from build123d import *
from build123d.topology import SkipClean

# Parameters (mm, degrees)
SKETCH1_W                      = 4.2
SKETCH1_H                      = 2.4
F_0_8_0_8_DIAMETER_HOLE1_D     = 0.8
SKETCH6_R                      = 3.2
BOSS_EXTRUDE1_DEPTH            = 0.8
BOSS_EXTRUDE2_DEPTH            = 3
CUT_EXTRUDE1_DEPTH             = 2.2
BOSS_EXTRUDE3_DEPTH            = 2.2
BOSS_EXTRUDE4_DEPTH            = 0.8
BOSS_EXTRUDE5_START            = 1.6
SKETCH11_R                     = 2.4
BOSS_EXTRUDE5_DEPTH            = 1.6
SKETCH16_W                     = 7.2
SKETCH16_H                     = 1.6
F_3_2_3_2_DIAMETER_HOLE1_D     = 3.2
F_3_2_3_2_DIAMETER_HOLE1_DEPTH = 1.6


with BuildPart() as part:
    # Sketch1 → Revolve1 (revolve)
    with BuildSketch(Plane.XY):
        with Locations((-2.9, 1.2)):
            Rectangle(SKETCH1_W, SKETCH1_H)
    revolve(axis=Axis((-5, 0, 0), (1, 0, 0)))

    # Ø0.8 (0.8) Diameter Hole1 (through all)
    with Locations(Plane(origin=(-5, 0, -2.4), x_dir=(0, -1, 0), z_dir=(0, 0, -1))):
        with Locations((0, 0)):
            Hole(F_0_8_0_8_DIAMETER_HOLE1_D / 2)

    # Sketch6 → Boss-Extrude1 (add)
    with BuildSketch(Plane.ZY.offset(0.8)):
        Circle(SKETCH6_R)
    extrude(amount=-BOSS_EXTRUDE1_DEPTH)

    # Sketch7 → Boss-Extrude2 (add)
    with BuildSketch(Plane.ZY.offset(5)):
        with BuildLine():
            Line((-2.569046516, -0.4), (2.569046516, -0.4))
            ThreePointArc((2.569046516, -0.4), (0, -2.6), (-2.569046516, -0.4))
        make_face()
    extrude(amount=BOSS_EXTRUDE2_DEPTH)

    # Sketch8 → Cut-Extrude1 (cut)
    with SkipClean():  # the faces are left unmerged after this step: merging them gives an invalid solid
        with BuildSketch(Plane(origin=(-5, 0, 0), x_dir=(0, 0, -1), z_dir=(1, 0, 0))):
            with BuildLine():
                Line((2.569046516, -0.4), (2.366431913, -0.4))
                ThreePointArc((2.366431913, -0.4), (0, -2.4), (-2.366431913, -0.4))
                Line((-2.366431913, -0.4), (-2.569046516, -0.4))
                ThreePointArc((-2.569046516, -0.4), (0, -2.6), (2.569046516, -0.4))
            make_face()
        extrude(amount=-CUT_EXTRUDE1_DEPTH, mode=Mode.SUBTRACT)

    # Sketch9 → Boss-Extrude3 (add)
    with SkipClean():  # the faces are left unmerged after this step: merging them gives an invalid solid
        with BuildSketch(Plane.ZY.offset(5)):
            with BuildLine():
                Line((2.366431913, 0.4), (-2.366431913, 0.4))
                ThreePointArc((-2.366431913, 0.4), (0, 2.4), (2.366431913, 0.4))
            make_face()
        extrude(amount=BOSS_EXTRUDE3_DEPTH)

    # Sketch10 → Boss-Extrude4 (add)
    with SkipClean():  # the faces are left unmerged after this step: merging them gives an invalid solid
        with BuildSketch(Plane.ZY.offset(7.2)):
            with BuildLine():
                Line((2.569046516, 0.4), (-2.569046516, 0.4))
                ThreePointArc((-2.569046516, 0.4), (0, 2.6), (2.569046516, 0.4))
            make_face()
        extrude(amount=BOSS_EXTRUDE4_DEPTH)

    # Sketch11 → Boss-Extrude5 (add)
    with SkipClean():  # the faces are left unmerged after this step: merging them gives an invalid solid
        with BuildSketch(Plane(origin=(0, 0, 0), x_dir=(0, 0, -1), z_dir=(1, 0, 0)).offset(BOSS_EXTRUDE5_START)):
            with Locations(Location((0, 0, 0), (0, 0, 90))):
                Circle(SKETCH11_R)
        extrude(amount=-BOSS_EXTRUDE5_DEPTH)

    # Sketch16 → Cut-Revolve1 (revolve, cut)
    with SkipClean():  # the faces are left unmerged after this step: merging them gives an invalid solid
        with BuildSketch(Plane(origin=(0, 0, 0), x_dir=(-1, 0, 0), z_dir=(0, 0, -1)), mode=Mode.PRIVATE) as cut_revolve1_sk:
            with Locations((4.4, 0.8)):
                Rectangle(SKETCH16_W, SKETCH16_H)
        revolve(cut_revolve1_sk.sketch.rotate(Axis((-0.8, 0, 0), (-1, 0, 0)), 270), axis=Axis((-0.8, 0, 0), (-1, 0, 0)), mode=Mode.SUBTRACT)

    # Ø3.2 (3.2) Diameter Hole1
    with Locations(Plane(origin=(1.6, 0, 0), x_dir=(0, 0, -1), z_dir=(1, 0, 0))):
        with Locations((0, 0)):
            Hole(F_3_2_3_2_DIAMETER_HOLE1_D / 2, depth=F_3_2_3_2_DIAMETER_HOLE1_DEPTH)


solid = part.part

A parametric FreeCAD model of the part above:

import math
import FreeCAD as App
import Part
import Sketcher
Q = App.Units.Quantity

doc = App.newDocument("Part")
params = doc.addObject("Spreadsheet::Sheet", "Params")
for row, (alias, value) in enumerate([
    ("sketch1_width", "4.2 mm"),
    ("sketch1_height", "2.4 mm"),
    ("revolution_angle", "360 deg"),
    ("sketch2_diameter", "0.8 mm"),
    ("hole_diameter", "0.8 mm"),
    ("sketch3_diameter", "6.4 mm"),
    ("pad1_length", "0.8 mm"),
    ("sketch4_radius", "2.6 mm"),
    ("pad2_length", "3 mm"),
    ("sketch5_radius", "2.4 mm"),
    ("sketch5_radius2", "2.6 mm"),
    ("pocket1_length", "2.2 mm"),
    ("sketch6_radius", "2.4 mm"),
    ("pad3_length", "2.2 mm"),
    ("sketch7_radius", "2.6 mm"),
    ("pad4_length", "0.8 mm"),
    ("sketch8_diameter", "4.8 mm"),
    ("pad5_length", "1.6 mm"),
    ("sketch9_width", "7.2 mm"),
    ("sketch9_height", "1.6 mm"),
    ("groove_angle", "360 deg"),
    ("sketch10_diameter", "3.2 mm"),
    ("hole2_diameter", "3.2 mm"),
    ("hole2_depth", "1.6 mm"),
], start=1):
    params.set(f"A{row}", alias)
    params.set(f"B{row}", "=" + value)
    params.setAlias(f"B{row}", alias)

body = doc.addObject("PartDesign::Body", "Body")

# Sketch on XY plane
sketch1 = doc.addObject("Sketcher::SketchObject", "Sketch")
body.addObject(sketch1)
sketch1.AttachmentSupport = (doc.XY_Plane, [""])
sketch1.MapMode = "FlatFace"
sketch1.addGeometry(Part.LineSegment(App.Vector(-5, 2.4, 0), App.Vector(-5, 0, 0)), False)
sketch1.addGeometry(Part.LineSegment(App.Vector(-5, 0, 0), App.Vector(-0.8, 0, 0)), False)
sketch1.addGeometry(Part.LineSegment(App.Vector(-0.8, 0, 0), App.Vector(-0.8, 2.4, 0)), False)
sketch1.addGeometry(Part.LineSegment(App.Vector(-0.8, 2.4, 0), App.Vector(-5, 2.4, 0)), False)
sketch1.addConstraint(Sketcher.Constraint("Coincident", 0, 2, 1, 1))
sketch1.addConstraint(Sketcher.Constraint("Coincident", 1, 2, 2, 1))
sketch1.addConstraint(Sketcher.Constraint("Coincident", 2, 2, 3, 1))
sketch1.addConstraint(Sketcher.Constraint("Coincident", 3, 2, 0, 1))
sketch1.addConstraint(Sketcher.Constraint("Vertical", 0))
sketch1.addConstraint(Sketcher.Constraint("Horizontal", 1))
sketch1.addConstraint(Sketcher.Constraint("Vertical", 2))
sketch1.addConstraint(Sketcher.Constraint("Horizontal", 3))
sketch1.addConstraint(Sketcher.Constraint("PointOnObject", 0, 2, -1))
sketch1.addConstraint(Sketcher.Constraint("DistanceX", 1, 1, 1, 2, Q("4.2 mm")))
sketch1.addConstraint(Sketcher.Constraint("DistanceY", 0, 2, 0, 1, Q("2.4 mm")))
sketch1.addConstraint(Sketcher.Constraint("DistanceX", 0, 2, -1, 1, Q("5 mm")))
sketch1.setExpression("Constraints[9]", "Params.sketch1_width")
sketch1.setExpression("Constraints[10]", "Params.sketch1_height")
revolution = doc.addObject("PartDesign::Revolution", "Revolution")
body.addObject(revolution)
revolution.Profile = sketch1
revolution.ReferenceAxis = (sketch1, ["H_Axis"])
revolution.setExpression("Angle", "Params.revolution_angle")

# Sketch on XY plane
sketch2 = doc.addObject("Sketcher::SketchObject", "Sketch001")
body.addObject(sketch2)
sketch2.AttachmentSupport = (doc.XY_Plane, [""])
sketch2.MapMode = "FlatFace"
sketch2.AttachmentOffset = App.Placement(App.Vector(0, 0, -2.4), App.Rotation())
sketch2.addGeometry(Part.Circle(App.Vector(-5, 0, 0), App.Vector(0, 0, 1), 0.4), False)
sketch2.addConstraint(Sketcher.Constraint("PointOnObject", 0, 3, -1))
sketch2.addConstraint(Sketcher.Constraint("Diameter", 0, Q("0.8 mm")))
sketch2.addConstraint(Sketcher.Constraint("DistanceX", 0, 3, -1, 1, Q("5 mm")))
sketch2.setExpression("Constraints[1]", "Params.sketch2_diameter")
doc.recompute()
hole = doc.addObject("PartDesign::Hole", "Hole")
body.addObject(hole)
hole.Profile = sketch2
hole.ThreadType = "None"
hole.setExpression("Diameter", "Params.hole_diameter")
hole.DepthType = "ThroughAll"
hole.Reversed = True

# Sketch on YZ plane
sketch3 = doc.addObject("Sketcher::SketchObject", "Sketch002")
body.addObject(sketch3)
sketch3.AttachmentSupport = (doc.YZ_Plane, [""])
sketch3.MapMode = "FlatFace"
sketch3.AttachmentOffset = App.Placement(App.Vector(0, 0, -0.8), App.Rotation())
sketch3.addGeometry(Part.Circle(App.Vector(0, 0, 0), App.Vector(0, 0, 1), 3.2), False)
sketch3.addConstraint(Sketcher.Constraint("Coincident", 0, 3, -1, 1))
sketch3.addConstraint(Sketcher.Constraint("Diameter", 0, Q("6.4 mm")))
sketch3.setExpression("Constraints[1]", "Params.sketch3_diameter")
pad1 = doc.addObject("PartDesign::Pad", "Pad")
body.addObject(pad1)
pad1.Profile = sketch3
pad1.setExpression("Length", "Params.pad1_length")

# Sketch on YZ plane
sketch4 = doc.addObject("Sketcher::SketchObject", "Sketch003")
body.addObject(sketch4)
sketch4.AttachmentSupport = (doc.YZ_Plane, [""])
sketch4.MapMode = "FlatFace"
sketch4.AttachmentOffset = App.Placement(App.Vector(0, 0, -5), App.Rotation())
sketch4.addGeometry(Part.LineSegment(App.Vector(-0.4, 2.569047, 0), App.Vector(-0.4, -2.569047, 0)), False)
sketch4.addGeometry(Part.ArcOfCircle(Part.Circle(App.Vector(0, 0, 0), App.Vector(0, 0, 1), 2.6), math.radians(98.849883), math.radians(261.150117)), False)
sketch4.addConstraint(Sketcher.Constraint("Coincident", 0, 1, 1, 1))
sketch4.addConstraint(Sketcher.Constraint("Coincident", 1, 2, 0, 2))
sketch4.addConstraint(Sketcher.Constraint("Vertical", 0))
sketch4.addConstraint(Sketcher.Constraint("Coincident", 1, 3, -1, 1))
sketch4.addConstraint(Sketcher.Constraint("Radius", 1, Q("2.6 mm")))
sketch4.addConstraint(Sketcher.Constraint("DistanceX", 0, 1, -1, 1, Q("0.4 mm")))
sketch4.setExpression("Constraints[4]", "Params.sketch4_radius")
pad2 = doc.addObject("PartDesign::Pad", "Pad001")
body.addObject(pad2)
pad2.Profile = sketch4
pad2.setExpression("Length", "Params.pad2_length")
pad2.Reversed = True

# Sketch on YZ plane
sketch5 = doc.addObject("Sketcher::SketchObject", "Sketch004")
body.addObject(sketch5)
sketch5.AttachmentSupport = (doc.YZ_Plane, [""])
sketch5.MapMode = "FlatFace"
sketch5.AttachmentOffset = App.Placement(App.Vector(0, 0, -5), App.Rotation())
sketch5.addGeometry(Part.LineSegment(App.Vector(-0.4, -2.569047, 0), App.Vector(-0.4, -2.366432, 0)), False)
sketch5.addGeometry(Part.ArcOfCircle(Part.Circle(App.Vector(0, 0, 0), App.Vector(0, 0, 1), 2.4), math.radians(99.594068), math.radians(260.405932)), False)
sketch5.addGeometry(Part.LineSegment(App.Vector(-0.4, 2.366432, 0), App.Vector(-0.4, 2.569047, 0)), False)
sketch5.addGeometry(Part.ArcOfCircle(Part.Circle(App.Vector(0, 0, 0), App.Vector(0, 0, 1), 2.6), math.radians(98.849883), math.radians(261.150117)), False)
sketch5.addConstraint(Sketcher.Constraint("Coincident", 0, 2, 1, 2))
sketch5.addConstraint(Sketcher.Constraint("Coincident", 1, 1, 2, 1))
sketch5.addConstraint(Sketcher.Constraint("Coincident", 2, 2, 3, 1))
sketch5.addConstraint(Sketcher.Constraint("Coincident", 3, 2, 0, 1))
sketch5.addConstraint(Sketcher.Constraint("Vertical", 0))
sketch5.addConstraint(Sketcher.Constraint("Vertical", 2))
sketch5.addConstraint(Sketcher.Constraint("Coincident", 1, 3, -1, 1))
sketch5.addConstraint(Sketcher.Constraint("Coincident", 3, 3, -1, 1))
sketch5.addConstraint(Sketcher.Constraint("Vertical", 0, 2, 1, 1))
sketch5.addConstraint(Sketcher.Constraint("Radius", 1, Q("2.4 mm")))
sketch5.addConstraint(Sketcher.Constraint("Radius", 3, Q("2.6 mm")))
sketch5.addConstraint(Sketcher.Constraint("DistanceX", 0, 2, -1, 1, Q("0.4 mm")))
sketch5.setExpression("Constraints[9]", "Params.sketch5_radius")
sketch5.setExpression("Constraints[10]", "Params.sketch5_radius2")
pocket1 = doc.addObject("PartDesign::Pocket", "Pocket")
body.addObject(pocket1)
pocket1.Profile = sketch5
pocket1.setExpression("Length", "Params.pocket1_length")

# Sketch on YZ plane
sketch6 = doc.addObject("Sketcher::SketchObject", "Sketch005")
body.addObject(sketch6)
sketch6.AttachmentSupport = (doc.YZ_Plane, [""])
sketch6.MapMode = "FlatFace"
sketch6.AttachmentOffset = App.Placement(App.Vector(0, 0, -5), App.Rotation())
sketch6.addGeometry(Part.LineSegment(App.Vector(0.4, -2.366432, 0), App.Vector(0.4, 2.366432, 0)), False)
sketch6.addGeometry(Part.ArcOfCircle(Part.Circle(App.Vector(0, 0, 0), App.Vector(0, 0, 1), 2.4), math.radians(-80.405932), math.radians(80.405932)), False)
sketch6.addConstraint(Sketcher.Constraint("Coincident", 0, 1, 1, 1))
sketch6.addConstraint(Sketcher.Constraint("Coincident", 1, 2, 0, 2))
sketch6.addConstraint(Sketcher.Constraint("Vertical", 0))
sketch6.addConstraint(Sketcher.Constraint("Coincident", 1, 3, -1, 1))
sketch6.addConstraint(Sketcher.Constraint("Radius", 1, Q("2.4 mm")))
sketch6.addConstraint(Sketcher.Constraint("DistanceX", -1, 1, 0, 1, Q("0.4 mm")))
sketch6.setExpression("Constraints[4]", "Params.sketch6_radius")
pad3 = doc.addObject("PartDesign::Pad", "Pad002")
body.addObject(pad3)
pad3.Profile = sketch6
pad3.setExpression("Length", "Params.pad3_length")
pad3.Reversed = True

# Sketch on YZ plane
sketch7 = doc.addObject("Sketcher::SketchObject", "Sketch006")
body.addObject(sketch7)
sketch7.AttachmentSupport = (doc.YZ_Plane, [""])
sketch7.MapMode = "FlatFace"
sketch7.AttachmentOffset = App.Placement(App.Vector(0, 0, -7.2), App.Rotation())
sketch7.addGeometry(Part.LineSegment(App.Vector(0.4, -2.569047, 0), App.Vector(0.4, 2.569047, 0)), False)
sketch7.addGeometry(Part.ArcOfCircle(Part.Circle(App.Vector(0, 0, 0), App.Vector(0, 0, 1), 2.6), math.radians(-81.150117), math.radians(81.150117)), False)
sketch7.addConstraint(Sketcher.Constraint("Coincident", 0, 1, 1, 1))
sketch7.addConstraint(Sketcher.Constraint("Coincident", 1, 2, 0, 2))
sketch7.addConstraint(Sketcher.Constraint("Vertical", 0))
sketch7.addConstraint(Sketcher.Constraint("Coincident", 1, 3, -1, 1))
sketch7.addConstraint(Sketcher.Constraint("Radius", 1, Q("2.6 mm")))
sketch7.addConstraint(Sketcher.Constraint("DistanceX", -1, 1, 0, 1, Q("0.4 mm")))
sketch7.setExpression("Constraints[4]", "Params.sketch7_radius")
pad4 = doc.addObject("PartDesign::Pad", "Pad003")
body.addObject(pad4)
pad4.Profile = sketch7
pad4.setExpression("Length", "Params.pad4_length")
pad4.Reversed = True

# Sketch on YZ plane
sketch8 = doc.addObject("Sketcher::SketchObject", "Sketch007")
body.addObject(sketch8)
sketch8.AttachmentSupport = (doc.YZ_Plane, [""])
sketch8.MapMode = "FlatFace"
sketch8.AttachmentOffset = App.Placement(App.Vector(0, 0, 1.6), App.Rotation())
sketch8.addGeometry(Part.Circle(App.Vector(0, 0, 0), App.Vector(0, 0, 1), 2.4), False)
sketch8.addConstraint(Sketcher.Constraint("Coincident", 0, 3, -1, 1))
sketch8.addConstraint(Sketcher.Constraint("Diameter", 0, Q("4.8 mm")))
sketch8.setExpression("Constraints[1]", "Params.sketch8_diameter")
pad5 = doc.addObject("PartDesign::Pad", "Pad004")
body.addObject(pad5)
pad5.Profile = sketch8
pad5.setExpression("Length", "Params.pad5_length")
pad5.Reversed = True

# Sketch on XY plane
sketch9 = doc.addObject("Sketcher::SketchObject", "Sketch008")
body.addObject(sketch9)
sketch9.AttachmentSupport = (doc.XY_Plane, [""])
sketch9.MapMode = "FlatFace"
sketch9.addGeometry(Part.LineSegment(App.Vector(-0.8, 1.6, 0), App.Vector(-0.8, 0, 0)), False)
sketch9.addGeometry(Part.LineSegment(App.Vector(-0.8, 0, 0), App.Vector(-8, 0, 0)), False)
sketch9.addGeometry(Part.LineSegment(App.Vector(-8, 0, 0), App.Vector(-8, 1.6, 0)), False)
sketch9.addGeometry(Part.LineSegment(App.Vector(-8, 1.6, 0), App.Vector(-0.8, 1.6, 0)), False)
sketch9.addConstraint(Sketcher.Constraint("Coincident", 0, 2, 1, 1))
sketch9.addConstraint(Sketcher.Constraint("Coincident", 1, 2, 2, 1))
sketch9.addConstraint(Sketcher.Constraint("Coincident", 2, 2, 3, 1))
sketch9.addConstraint(Sketcher.Constraint("Coincident", 3, 2, 0, 1))
sketch9.addConstraint(Sketcher.Constraint("Vertical", 0))
sketch9.addConstraint(Sketcher.Constraint("Horizontal", 1))
sketch9.addConstraint(Sketcher.Constraint("Vertical", 2))
sketch9.addConstraint(Sketcher.Constraint("Horizontal", 3))
sketch9.addConstraint(Sketcher.Constraint("PointOnObject", 0, 2, -1))
sketch9.addConstraint(Sketcher.Constraint("DistanceX", 1, 2, 1, 1, Q("7.2 mm")))
sketch9.addConstraint(Sketcher.Constraint("DistanceY", 0, 2, 0, 1, Q("1.6 mm")))
sketch9.addConstraint(Sketcher.Constraint("DistanceX", 1, 2, -1, 1, Q("8 mm")))
sketch9.setExpression("Constraints[9]", "Params.sketch9_width")
sketch9.setExpression("Constraints[10]", "Params.sketch9_height")
groove = doc.addObject("PartDesign::Groove", "Groove")
body.addObject(groove)
groove.Profile = sketch9
groove.ReferenceAxis = (sketch9, ["H_Axis"])
groove.setExpression("Angle", "Params.groove_angle")

# Sketch on YZ plane
sketch10 = doc.addObject("Sketcher::SketchObject", "Sketch009")
body.addObject(sketch10)
sketch10.AttachmentSupport = (doc.YZ_Plane, [""])
sketch10.MapMode = "FlatFace"
sketch10.AttachmentOffset = App.Placement(App.Vector(0, 0, 1.6), App.Rotation())
sketch10.addGeometry(Part.Circle(App.Vector(0, 0, 0), App.Vector(0, 0, 1), 1.6), False)
sketch10.addConstraint(Sketcher.Constraint("Coincident", 0, 3, -1, 1))
sketch10.addConstraint(Sketcher.Constraint("Diameter", 0, Q("3.2 mm")))
sketch10.setExpression("Constraints[1]", "Params.sketch10_diameter")
doc.recompute()
hole2 = doc.addObject("PartDesign::Hole", "Hole001")
body.addObject(hole2)
hole2.Profile = sketch10
hole2.ThreadType = "None"
hole2.setExpression("Diameter", "Params.hole2_diameter")
hole2.DepthType = "Dimension"
hole2.setExpression("Depth", "Params.hole2_depth")
hole2.DrillPoint = "Flat"

doc.recompute()
